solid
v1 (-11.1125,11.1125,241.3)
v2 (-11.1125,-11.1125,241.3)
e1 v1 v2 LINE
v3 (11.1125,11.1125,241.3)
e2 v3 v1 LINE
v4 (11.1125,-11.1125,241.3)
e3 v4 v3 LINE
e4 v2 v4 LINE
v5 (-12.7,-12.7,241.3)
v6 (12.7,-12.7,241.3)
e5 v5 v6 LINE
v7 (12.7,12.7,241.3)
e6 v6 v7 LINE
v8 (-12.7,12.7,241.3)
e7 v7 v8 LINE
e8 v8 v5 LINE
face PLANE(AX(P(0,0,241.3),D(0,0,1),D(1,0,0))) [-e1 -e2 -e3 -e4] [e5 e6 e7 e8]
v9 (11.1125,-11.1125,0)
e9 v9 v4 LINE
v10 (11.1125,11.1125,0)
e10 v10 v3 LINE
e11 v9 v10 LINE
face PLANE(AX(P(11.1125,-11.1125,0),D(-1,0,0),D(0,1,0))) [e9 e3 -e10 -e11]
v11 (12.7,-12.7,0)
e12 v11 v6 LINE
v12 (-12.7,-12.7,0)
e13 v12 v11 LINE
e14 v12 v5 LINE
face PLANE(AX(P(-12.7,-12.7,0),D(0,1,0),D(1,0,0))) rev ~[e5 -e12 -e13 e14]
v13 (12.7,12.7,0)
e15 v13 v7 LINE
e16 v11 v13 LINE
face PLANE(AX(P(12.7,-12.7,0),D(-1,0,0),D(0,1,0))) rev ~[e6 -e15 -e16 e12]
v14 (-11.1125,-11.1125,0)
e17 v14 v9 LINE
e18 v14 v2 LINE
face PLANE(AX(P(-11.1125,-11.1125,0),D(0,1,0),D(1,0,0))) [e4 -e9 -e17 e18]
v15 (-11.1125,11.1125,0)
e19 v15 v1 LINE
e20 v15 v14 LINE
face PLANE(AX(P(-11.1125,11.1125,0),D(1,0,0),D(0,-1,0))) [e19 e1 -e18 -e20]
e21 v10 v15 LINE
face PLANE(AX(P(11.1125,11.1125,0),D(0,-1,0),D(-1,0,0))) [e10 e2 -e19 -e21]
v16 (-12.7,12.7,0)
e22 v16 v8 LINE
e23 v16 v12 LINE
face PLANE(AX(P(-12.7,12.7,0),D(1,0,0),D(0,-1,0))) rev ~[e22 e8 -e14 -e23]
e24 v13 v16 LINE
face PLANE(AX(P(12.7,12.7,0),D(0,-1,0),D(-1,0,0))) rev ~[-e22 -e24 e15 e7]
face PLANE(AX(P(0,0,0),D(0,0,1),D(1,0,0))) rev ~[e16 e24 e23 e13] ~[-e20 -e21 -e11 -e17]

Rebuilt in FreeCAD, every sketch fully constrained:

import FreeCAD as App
import Part
import Sketcher
Q = App.Units.Quantity


def add_polygon(sketch, points):
    """Adds a closed chain of lines whose ends are joined by coincident constraints."""
    first, n = sketch.GeometryCount, len(points)
    for a, b in zip(points, points[1:] + points[:1]):
        sketch.addGeometry(Part.LineSegment(App.Vector(*a, 0), App.Vector(*b, 0)), False)
    for i in range(n):
        sketch.addConstraint(Sketcher.Constraint("Coincident", first + i, 2, first + (i + 1) % n, 1))

doc = App.newDocument("Part")
body = doc.addObject("PartDesign::Body", "Body")

sketch1 = body.newObject("Sketcher::SketchObject", "Sketch")
sketch1.AttachmentSupport = (doc.getObject("XY_Plane"), [""])
sketch1.MapMode = "FlatFace"
add_polygon(sketch1, [(-13, 13), (-13, -13), (13, -13), (13, 13)])
add_polygon(sketch1, [(11, -11), (-11, -11), (-11, 11), (11, 11)])
sketch1.addConstraint([
    Sketcher.Constraint("Vertical", 0),
    Sketcher.Constraint("Horizontal", 1),
    Sketcher.Constraint("Vertical", 2),
    Sketcher.Constraint("Horizontal", 3),
    Sketcher.Constraint("Horizontal", 4),
    Sketcher.Constraint("Vertical", 5),
    Sketcher.Constraint("Horizontal", 6),
    Sketcher.Constraint("Vertical", 7),
    Sketcher.Constraint("Symmetric", 0, 2, 2, 2, -1, 1),
    Sketcher.Constraint("Symmetric", 4, 2, 6, 2, -1, 1),
    Sketcher.Constraint("Equal", 3, 0),
    Sketcher.Constraint("Equal", 6, 5),
    Sketcher.Constraint("DistanceX", 1, 1, 1, 2, Q("1 in")),
    Sketcher.Constraint("DistanceX", 4, 2, 4, 1, Q("0.875 in")),
])
pad1 = body.newObject("PartDesign::Pad", "Pad")
pad1.Profile = sketch1
pad1.Length = Q("9.5 in")

doc.recompute()
